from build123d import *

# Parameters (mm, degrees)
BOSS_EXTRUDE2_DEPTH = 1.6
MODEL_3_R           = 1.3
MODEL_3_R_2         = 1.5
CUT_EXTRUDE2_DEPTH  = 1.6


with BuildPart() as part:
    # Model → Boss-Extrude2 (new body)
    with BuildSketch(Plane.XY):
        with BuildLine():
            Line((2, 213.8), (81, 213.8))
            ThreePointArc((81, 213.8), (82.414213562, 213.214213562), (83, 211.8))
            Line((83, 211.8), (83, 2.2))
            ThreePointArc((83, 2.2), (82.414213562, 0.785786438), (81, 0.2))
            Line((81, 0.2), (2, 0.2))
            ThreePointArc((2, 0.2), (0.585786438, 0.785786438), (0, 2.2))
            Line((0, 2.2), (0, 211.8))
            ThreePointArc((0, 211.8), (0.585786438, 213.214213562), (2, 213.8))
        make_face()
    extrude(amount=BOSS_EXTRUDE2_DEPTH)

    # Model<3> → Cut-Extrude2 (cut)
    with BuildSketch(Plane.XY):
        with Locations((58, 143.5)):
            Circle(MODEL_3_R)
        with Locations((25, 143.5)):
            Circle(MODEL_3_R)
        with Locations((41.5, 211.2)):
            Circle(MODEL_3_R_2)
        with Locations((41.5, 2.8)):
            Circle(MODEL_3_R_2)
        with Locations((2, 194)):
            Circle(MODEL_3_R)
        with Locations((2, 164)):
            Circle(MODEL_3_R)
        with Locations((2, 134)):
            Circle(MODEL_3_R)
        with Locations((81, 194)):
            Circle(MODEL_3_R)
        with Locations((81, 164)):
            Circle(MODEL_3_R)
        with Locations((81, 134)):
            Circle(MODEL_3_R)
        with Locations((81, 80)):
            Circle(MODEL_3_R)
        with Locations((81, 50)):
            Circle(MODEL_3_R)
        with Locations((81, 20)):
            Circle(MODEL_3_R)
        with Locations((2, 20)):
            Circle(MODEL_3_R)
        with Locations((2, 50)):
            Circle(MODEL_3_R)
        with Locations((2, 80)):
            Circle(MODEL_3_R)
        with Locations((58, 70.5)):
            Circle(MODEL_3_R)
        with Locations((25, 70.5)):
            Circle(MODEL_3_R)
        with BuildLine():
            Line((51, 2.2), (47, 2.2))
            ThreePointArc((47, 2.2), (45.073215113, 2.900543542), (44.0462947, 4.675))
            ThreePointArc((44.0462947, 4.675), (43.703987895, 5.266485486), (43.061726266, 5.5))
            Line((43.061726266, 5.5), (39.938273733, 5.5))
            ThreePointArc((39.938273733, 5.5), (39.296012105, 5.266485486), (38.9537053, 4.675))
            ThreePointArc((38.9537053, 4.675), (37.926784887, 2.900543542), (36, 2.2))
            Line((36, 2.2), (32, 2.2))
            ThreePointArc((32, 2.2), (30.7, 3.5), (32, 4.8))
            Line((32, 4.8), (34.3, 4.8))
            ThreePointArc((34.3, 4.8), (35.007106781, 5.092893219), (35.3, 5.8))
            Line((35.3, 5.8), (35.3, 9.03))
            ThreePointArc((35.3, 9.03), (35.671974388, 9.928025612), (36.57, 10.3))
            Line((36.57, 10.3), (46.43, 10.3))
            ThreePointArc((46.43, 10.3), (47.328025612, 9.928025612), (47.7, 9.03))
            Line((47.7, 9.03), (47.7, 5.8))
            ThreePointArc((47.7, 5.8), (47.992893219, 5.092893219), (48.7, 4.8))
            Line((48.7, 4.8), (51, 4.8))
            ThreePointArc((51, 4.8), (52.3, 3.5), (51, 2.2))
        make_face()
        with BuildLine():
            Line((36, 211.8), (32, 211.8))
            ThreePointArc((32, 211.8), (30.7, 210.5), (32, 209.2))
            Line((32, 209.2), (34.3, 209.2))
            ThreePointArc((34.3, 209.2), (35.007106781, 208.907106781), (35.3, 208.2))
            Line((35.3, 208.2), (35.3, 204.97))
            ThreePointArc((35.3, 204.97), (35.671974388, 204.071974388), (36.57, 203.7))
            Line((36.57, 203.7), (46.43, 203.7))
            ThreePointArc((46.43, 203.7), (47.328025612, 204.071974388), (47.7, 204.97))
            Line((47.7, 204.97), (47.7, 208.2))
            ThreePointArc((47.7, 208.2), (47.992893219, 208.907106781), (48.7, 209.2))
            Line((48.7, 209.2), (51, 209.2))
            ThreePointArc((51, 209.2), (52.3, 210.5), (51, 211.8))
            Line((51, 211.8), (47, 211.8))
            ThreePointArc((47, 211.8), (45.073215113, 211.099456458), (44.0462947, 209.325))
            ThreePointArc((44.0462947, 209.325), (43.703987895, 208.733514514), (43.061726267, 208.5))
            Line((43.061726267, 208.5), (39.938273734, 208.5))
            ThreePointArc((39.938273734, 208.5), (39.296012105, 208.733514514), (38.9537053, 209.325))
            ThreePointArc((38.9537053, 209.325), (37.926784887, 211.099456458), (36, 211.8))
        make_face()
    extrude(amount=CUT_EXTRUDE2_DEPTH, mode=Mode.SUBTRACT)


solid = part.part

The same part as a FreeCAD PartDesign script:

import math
import FreeCAD as App
import Part
import Sketcher
from FreeCAD import Vector

doc = App.newDocument("Part")
body = doc.addObject("PartDesign::Body", "Body")

sketch1 = body.newObject("Sketcher::SketchObject", "Sketch")
sketch1.AttachmentSupport = (doc.getObject("XY_Plane"), [""])
sketch1.MapMode = "FlatFace"
sketch1.addGeometry([
    Part.LineSegment(Vector(81, 213.8, 0), Vector(2, 213.8, 0)),
    Part.ArcOfCircle(Part.Circle(Vector(2, 211.8, 0), Vector(0, 0, 1), 2), math.radians(90), math.radians(180)),
    Part.LineSegment(Vector(0, 211.8, 0), Vector(0, 2.2, 0)),
    Part.ArcOfCircle(Part.Circle(Vector(2, 2.2, 0), Vector(0, 0, 1), 2), math.radians(-180), math.radians(-90)),
    Part.LineSegment(Vector(2, 0.2, 0), Vector(81, 0.2, 0)),
    Part.ArcOfCircle(Part.Circle(Vector(81, 2.2, 0), Vector(0, 0, 1), 2), math.radians(-90), math.radians(0)),
    Part.LineSegment(Vector(83, 2.2, 0), Vector(83, 211.8, 0)),
    Part.ArcOfCircle(Part.Circle(Vector(81, 211.8, 0), Vector(0, 0, 1), 2), math.radians(0), math.radians(90)),
], False)
sketch1.addConstraint([
    Sketcher.Constraint("Tangent", 0, 2, 1, 1),
    Sketcher.Constraint("Tangent", 1, 2, 2, 1),
    Sketcher.Constraint("Tangent", 2, 2, 3, 1),
    Sketcher.Constraint("Tangent", 3, 2, 4, 1),
    Sketcher.Constraint("Tangent", 4, 2, 5, 1),
    Sketcher.Constraint("Tangent", 5, 2, 6, 1),
    Sketcher.Constraint("Tangent", 6, 2, 7, 1),
    Sketcher.Constraint("Tangent", 7, 2, 0, 1),
    Sketcher.Constraint("Horizontal", 0),
    Sketcher.Constraint("Vertical", 2),
    Sketcher.Constraint("Horizontal", 4),
    Sketcher.Constraint("Vertical", 6),
    Sketcher.Constraint("Equal", 1, 3),
    Sketcher.Constraint("Equal", 3, 5),
    Sketcher.Constraint("Equal", 5, 7),
    Sketcher.Constraint("PointOnObject", 1, 2, -2),
    Sketcher.Constraint("Radius", 1, 2.0),
    Sketcher.Constraint("DistanceX", 0, 2, 0, 1, 79.0),
    Sketcher.Constraint("DistanceY", 2, 2, 2, 1, 209.6),
    Sketcher.Constraint("DistanceY", -1, 1, 1, 3, 211.8),
])
pad1 = body.newObject("PartDesign::Pad", "Pad")
pad1.Profile = sketch1
pad1.Length = 1.6

sketch2 = body.newObject("Sketcher::SketchObject", "Sketch001")
sketch2.AttachmentSupport = (doc.getObject("XY_Plane"), [""])
sketch2.MapMode = "FlatFace"
sketch2.addGeometry([
    Part.Circle(Vector(58, 143.5, 0), Vector(0, 0, 1), 1.3),
    Part.Circle(Vector(25, 143.5, 0), Vector(0, 0, 1), 1.3),
    Part.Circle(Vector(41.5, 211.2, 0), Vector(0, 0, 1), 1.5),
    Part.Circle(Vector(41.5, 2.8, 0), Vector(0, 0, 1), 1.5),
    Part.Circle(Vector(2, 194, 0), Vector(0, 0, 1), 1.3),
    Part.Circle(Vector(2, 164, 0), Vector(0, 0, 1), 1.3),
    Part.Circle(Vector(2, 134, 0), Vector(0, 0, 1), 1.3),
    Part.Circle(Vector(81, 194, 0), Vector(0, 0, 1), 1.3),
    Part.Circle(Vector(81, 164, 0), Vector(0, 0, 1), 1.3),
    Part.Circle(Vector(81, 134, 0), Vector(0, 0, 1), 1.3),
    Part.Circle(Vector(81, 80, 0), Vector(0, 0, 1), 1.3),
    Part.Circle(Vector(81, 50, 0), Vector(0, 0, 1), 1.3),
    Part.Circle(Vector(81, 20, 0), Vector(0, 0, 1), 1.3),
    Part.Circle(Vector(2, 20, 0), Vector(0, 0, 1), 1.3),
    Part.Circle(Vector(2, 50, 0), Vector(0, 0, 1), 1.3),
    Part.Circle(Vector(2, 80, 0), Vector(0, 0, 1), 1.3),
    Part.Circle(Vector(58, 70.5, 0), Vector(0, 0, 1), 1.3),
    Part.Circle(Vector(25, 70.5, 0), Vector(0, 0, 1), 1.3),
    Part.LineSegment(Vector(47, 2.2, 0), Vector(51, 2.2, 0)),
    Part.ArcOfCircle(Part.Circle(Vector(51, 3.5, 0), Vector(0, 0, 1), 1.3), math.radians(-90), math.radians(90)),
    Part.LineSegment(Vector(51, 4.8, 0), Vector(48.7, 4.8, 0)),
    Part.ArcOfCircle(Part.Circle(Vector(48.7, 5.8, 0), Vector(0, 0, 1), 1), math.radians(-180), math.radians(-90)),
    Part.LineSegment(Vector(47.7, 5.8, 0), Vector(47.7, 9.03, 0)),
    Part.ArcOfCircle(Part.Circle(Vector(46.43, 9.03, 0), Vector(0, 0, 1), 1.27), math.radians(0), math.radians(90)),
    Part.LineSegment(Vector(46.43, 10.3, 0), Vector(36.57, 10.3, 0)),
    Part.ArcOfCircle(Part.Circle(Vector(36.57, 9.03, 0), Vector(0, 0, 1), 1.27), math.radians(90), math.radians(180)),
    Part.LineSegment(Vector(35.3, 9.03, 0), Vector(35.3, 5.8, 0)),
    Part.ArcOfCircle(Part.Circle(Vector(34.3, 5.8, 0), Vector(0, 0, 1), 1), math.radians(-90), math.radians(0)),
    Part.LineSegment(Vector(34.3, 4.8, 0), Vector(32, 4.8, 0)),
    Part.ArcOfCircle(Part.Circle(Vector(32, 3.5, 0), Vector(0, 0, 1), 1.3), math.radians(90), math.radians(270)),
    Part.LineSegment(Vector(32, 2.2, 0), Vector(36, 2.2, 0)),
    Part.ArcOfCircle(Part.Circle(Vector(36, 5.2, 0), Vector(0, 0, 1), 3), math.radians(-90), math.radians(-10.078658)),
    Part.ArcOfCircle(Part.Circle(Vector(39.938274, 4.5, 0), Vector(0, 0, 1), 1), math.radians(90), math.radians(169.921342)),
    Part.LineSegment(Vector(39.938274, 5.5, 0), Vector(43.061726, 5.5, 0)),
    Part.ArcOfCircle(Part.Circle(Vector(43.061726, 4.5, 0), Vector(0, 0, 1), 1), math.radians(10.078658), math.radians(90)),
    Part.ArcOfCircle(Part.Circle(Vector(47, 5.2, 0), Vector(0, 0, 1), 3), math.radians(-169.921342), math.radians(-90)),
    Part.LineSegment(Vector(36, 211.8, 0), Vector(32, 211.8, 0)),
    Part.ArcOfCircle(Part.Circle(Vector(32, 210.5, 0), Vector(0, 0, 1), 1.3), math.radians(90), math.radians(270)),
    Part.LineSegment(Vector(32, 209.2, 0), Vector(34.3, 209.2, 0)),
    Part.ArcOfCircle(Part.Circle(Vector(34.3, 208.2, 0), Vector(0, 0, 1), 1), math.radians(0), math.radians(90)),
    Part.LineSegment(Vector(35.3, 208.2, 0), Vector(35.3, 204.97, 0)),
    Part.ArcOfCircle(Part.Circle(Vector(36.57, 204.97, 0), Vector(0, 0, 1), 1.27), math.radians(180), math.radians(270)),
    Part.LineSegment(Vector(36.57, 203.7, 0), Vector(46.43, 203.7, 0)),
    Part.ArcOfCircle(Part.Circle(Vector(46.43, 204.97, 0), Vector(0, 0, 1), 1.27), math.radians(-90), math.radians(0)),
    Part.LineSegment(Vector(47.7, 204.97, 0), Vector(47.7, 208.2, 0)),
    Part.ArcOfCircle(Part.Circle(Vector(48.7, 208.2, 0), Vector(0, 0, 1), 1), math.radians(90), math.radians(180)),
    Part.LineSegment(Vector(48.7, 209.2, 0), Vector(51, 209.2, 0)),
    Part.ArcOfCircle(Part.Circle(Vector(51, 210.5, 0), Vector(0, 0, 1), 1.3), math.radians(-90), math.radians(90)),
    Part.LineSegment(Vector(51, 211.8, 0), Vector(47, 211.8, 0)),
    Part.ArcOfCircle(Part.Circle(Vector(47, 208.8, 0), Vector(0, 0, 1), 3), math.radians(90), math.radians(169.921342)),
    Part.ArcOfCircle(Part.Circle(Vector(43.061726, 209.5, 0), Vector(0, 0, 1), 1), math.radians(-90), math.radians(-10.078658)),
    Part.LineSegment(Vector(43.061726, 208.5, 0), Vector(39.938274, 208.5, 0)),
    Part.ArcOfCircle(Part.Circle(Vector(39.938274, 209.5, 0), Vector(0, 0, 1), 1), math.radians(-169.921342), math.radians(-90)),
    Part.ArcOfCircle(Part.Circle(Vector(36, 208.8, 0), Vector(0, 0, 1), 3), math.radians(10.078658), math.radians(90)),
], False)
sketch2.addConstraint([
    Sketcher.Constraint("Tangent", 18, 2, 19, 1),
    Sketcher.Constraint("Tangent", 19, 2, 20, 1),
    Sketcher.Constraint("Tangent", 20, 2, 21, 2),
    Sketcher.Constraint("Tangent", 21, 1, 22, 1),
    Sketcher.Constraint("Tangent", 22, 2, 23, 1),
    Sketcher.Constraint("Tangent", 23, 2, 24, 1),
    Sketcher.Constraint("Tangent", 24, 2, 25, 1),
    Sketcher.Constraint("Tangent", 25, 2, 26, 1),
    Sketcher.Constraint("Tangent", 26, 2, 27, 2),
    Sketcher.Constraint("Tangent", 27, 1, 28, 1),
    Sketcher.Constraint("Tangent", 28, 2, 29, 1),
    Sketcher.Constraint("Tangent", 29, 2, 30, 1),
    Sketcher.Constraint("Tangent", 30, 2, 31, 1),
    Sketcher.Constraint("Tangent", 31, 2, 32, 2),
    Sketcher.Constraint("Tangent", 32, 1, 33, 1),
    Sketcher.Constraint("Tangent", 33, 2, 34, 2),
    Sketcher.Constraint("Tangent", 34, 1, 35, 1),
    Sketcher.Constraint("Tangent", 35, 2, 18, 1),
    Sketcher.Constraint("Tangent", 36, 2, 37, 1),
    Sketcher.Constraint("Tangent", 37, 2, 38, 1),
    Sketcher.Constraint("Tangent", 38, 2, 39, 2),
    Sketcher.Constraint("Tangent", 39, 1, 40, 1),
    Sketcher.Constraint("Tangent", 40, 2, 41, 1),
    Sketcher.Constraint("Tangent", 41, 2, 42, 1),
    Sketcher.Constraint("Tangent", 42, 2, 43, 1),
    Sketcher.Constraint("Tangent", 43, 2, 44, 1),
    Sketcher.Constraint("Tangent", 44, 2, 45, 2),
    Sketcher.Constraint("Tangent", 45, 1, 46, 1),
    Sketcher.Constraint("Tangent", 46, 2, 47, 1),
    Sketcher.Constraint("Tangent", 47, 2, 48, 1),
    Sketcher.Constraint("Tangent", 48, 2, 49, 1),
    Sketcher.Constraint("Tangent", 49, 2, 50, 2),
    Sketcher.Constraint("Tangent", 50, 1, 51, 1),
    Sketcher.Constraint("Tangent", 51, 2, 52, 2),
    Sketcher.Constraint("Tangent", 52, 1, 53, 1),
    Sketcher.Constraint("Tangent", 53, 2, 36, 1),
    Sketcher.Constraint("Horizontal", 18),
    Sketcher.Constraint("Horizontal", 20),
    Sketcher.Constraint("Vertical", 22),
    Sketcher.Constraint("Horizontal", 24),
    Sketcher.Constraint("Vertical", 26),
    Sketcher.Constraint("Horizontal", 28),
    Sketcher.Constraint("Horizontal", 30),
    Sketcher.Constraint("Horizontal", 33),
    Sketcher.Constraint("Horizontal", 36),
    Sketcher.Constraint("Horizontal", 38),
    Sketcher.Constraint("Vertical", 40),
    Sketcher.Constraint("Horizontal", 42),
    Sketcher.Constraint("Vertical", 44),
    Sketcher.Constraint("Horizontal", 46),
    Sketcher.Constraint("Horizontal", 48),
    Sketcher.Constraint("Horizontal", 51),
    Sketcher.Constraint("Equal", 0, 1),
    Sketcher.Constraint("Equal", 2, 3),
    Sketcher.Constraint("Equal", 1, 4),
    Sketcher.Constraint("Equal", 4, 5),
    Sketcher.Constraint("Equal", 5, 6),
    Sketcher.Constraint("Equal", 6, 7),
    Sketcher.Constraint("Equal", 7, 8),
    Sketcher.Constraint("Equal", 8, 9),
    Sketcher.Constraint("Equal", 9, 10),
    Sketcher.Constraint("Equal", 10, 11),
    Sketcher.Constraint("Equal", 11, 12),
    Sketcher.Constraint("Equal", 12, 13),
    Sketcher.Constraint("Equal", 13, 14),
    Sketcher.Constraint("Equal", 14, 15),
    Sketcher.Constraint("Equal", 15, 16),
    Sketcher.Constraint("Equal", 16, 17),
    Sketcher.Constraint("Equal", 17, 19),
    Sketcher.Constraint("Equal", 23, 25),
    Sketcher.Constraint("Equal", 21, 27),
    Sketcher.Constraint("Equal", 19, 29),
    Sketcher.Constraint("Equal", 27, 32),
    Sketcher.Constraint("Equal", 32, 34),
    Sketcher.Constraint("Equal", 31, 35),
    Sketcher.Constraint("Equal", 29, 37),
    Sketcher.Constraint("Equal", 34, 39),
    Sketcher.Constraint("Equal", 25, 41),
    Sketcher.Constraint("Equal", 41, 43),
    Sketcher.Constraint("Equal", 39, 45),
    Sketcher.Constraint("Equal", 37, 47),
    Sketcher.Constraint("Equal", 35, 49),
    Sketcher.Constraint("Equal", 45, 50),
    Sketcher.Constraint("Equal", 50, 52),
    Sketcher.Constraint("Equal", 49, 53),
    Sketcher.Constraint("Horizontal", 0, 3, 1, 3),
    Sketcher.Constraint("Horizontal", 4, 3, 7, 3),
    Sketcher.Constraint("Horizontal", 5, 3, 8, 3),
    Sketcher.Constraint("Horizontal", 6, 3, 9, 3),
    Sketcher.Constraint("Horizontal", 12, 3, 13, 3),
    Sketcher.Constraint("Horizontal", 11, 3, 14, 3),
    Sketcher.Constraint("Horizontal", 10, 3, 15, 3),
    Sketcher.Constraint("Horizontal", 16, 3, 17, 3),
    Sketcher.Constraint("Horizontal", 21, 3, 27, 3),
    Sketcher.Constraint("Horizontal", 39, 3, 45, 3),
    Sketcher.Constraint("Vertical", 2, 3, 3, 3),
    Sketcher.Constraint("Vertical", 4, 3, 5, 3),
    Sketcher.Constraint("Vertical", 5, 3, 6, 3),
    Sketcher.Constraint("Vertical", 7, 3, 8, 3),
    Sketcher.Constraint("Vertical", 8, 3, 9, 3),
    Sketcher.Constraint("Vertical", 9, 3, 10, 3),
    Sketcher.Constraint("Vertical", 10, 3, 11, 3),
    Sketcher.Constraint("Vertical", 11, 3, 12, 3),
    Sketcher.Constraint("Vertical", 6, 3, 13, 3),
    Sketcher.Constraint("Vertical", 13, 3, 14, 3),
    Sketcher.Constraint("Vertical", 14, 3, 15, 3),
    Sketcher.Constraint("Vertical", 0, 3, 16, 3),
    Sketcher.Constraint("Vertical", 1, 3, 17, 3),
    Sketcher.Constraint("Vertical", 29, 3, 37, 3),
    Sketcher.Constraint("Vertical", 27, 3, 39, 3),
    Sketcher.Constraint("Vertical", 23, 3, 43, 3),
    Sketcher.Constraint("Vertical", 19, 3, 47, 3),
    Sketcher.Constraint("Vertical", 35, 3, 49, 3),
    Sketcher.Constraint("Vertical", 34, 3, 50, 3),
    Sketcher.Constraint("Vertical", 32, 3, 52, 3),
    Sketcher.Constraint("Equal", 20, 28),
    Sketcher.Constraint("Equal", 18, 30),
    Sketcher.Constraint("Equal", 26, 40),
    Sketcher.Constraint("Diameter", 2, 3.0),
    Sketcher.Constraint("Radius", 21, 1.0),
    Sketcher.Constraint("Radius", 31, 3.0),
    Sketcher.Constraint("Diameter", 0, 2.6),
    Sketcher.Constraint("DistanceX", 18, 1, 18, 2, 4.0),
    Sketcher.Constraint("Radius", 23, 1.27),
    Sketcher.Constraint("DistanceX", 20, 2, 20, 1, 2.3),
    Sketcher.Constraint("DistanceX", -1, 1, 0, 3, 58.0),
    Sketcher.Constraint("DistanceX", -1, 1, 1, 3, 25.0),
    Sketcher.Constraint("DistanceX", -1, 1, 4, 3, 2.0),
    Sketcher.Constraint("DistanceY", -1, 1, 4, 3, 194.0),
    Sketcher.Constraint("DistanceY", -1, 1, 5, 3, 164.0),
    Sketcher.Constraint("DistanceY", -1, 1, 6, 3, 134.0),
    Sketcher.Constraint("DistanceX", -1, 1, 7, 3, 81.0),
    Sketcher.Constraint("DistanceY", -1, 1, 10, 3, 80.0),
    Sketcher.Constraint("DistanceY", -1, 1, 11, 3, 50.0),
    Sketcher.Constraint("DistanceY", -1, 1, 12, 3, 20.0),
    Sketcher.Constraint("DistanceX", -1, 1, 19, 3, 51.0),
    Sketcher.Constraint("DistanceX", -1, 1, 29, 3, 32.0),
    Sketcher.Constraint("DistanceY", 22, 1, 22, 2, 3.23),
    Sketcher.Constraint("DistanceY", -1, 1, 0, 3, 143.5),
    Sketcher.Constraint("DistanceX", -1, 1, 2, 3, 41.5),
    Sketcher.Constraint("DistanceY", -1, 1, 2, 3, 211.2),
    Sketcher.Constraint("DistanceY", -1, 1, 3, 3, 2.8),
    Sketcher.Constraint("DistanceY", -1, 1, 16, 3, 70.5),
    Sketcher.Constraint("DistanceY", -1, 1, 19, 3, 3.5),
    Sketcher.Constraint("DistanceY", -1, 1, 32, 3, 4.5),
    Sketcher.Constraint("DistanceY", -1, 1, 37, 3, 210.5),
])
pocket1 = body.newObject("PartDesign::Pocket", "Pocket")
pocket1.Profile = sketch2
pocket1.Length = 1.6
pocket1.Reversed = True

doc.recompute()
